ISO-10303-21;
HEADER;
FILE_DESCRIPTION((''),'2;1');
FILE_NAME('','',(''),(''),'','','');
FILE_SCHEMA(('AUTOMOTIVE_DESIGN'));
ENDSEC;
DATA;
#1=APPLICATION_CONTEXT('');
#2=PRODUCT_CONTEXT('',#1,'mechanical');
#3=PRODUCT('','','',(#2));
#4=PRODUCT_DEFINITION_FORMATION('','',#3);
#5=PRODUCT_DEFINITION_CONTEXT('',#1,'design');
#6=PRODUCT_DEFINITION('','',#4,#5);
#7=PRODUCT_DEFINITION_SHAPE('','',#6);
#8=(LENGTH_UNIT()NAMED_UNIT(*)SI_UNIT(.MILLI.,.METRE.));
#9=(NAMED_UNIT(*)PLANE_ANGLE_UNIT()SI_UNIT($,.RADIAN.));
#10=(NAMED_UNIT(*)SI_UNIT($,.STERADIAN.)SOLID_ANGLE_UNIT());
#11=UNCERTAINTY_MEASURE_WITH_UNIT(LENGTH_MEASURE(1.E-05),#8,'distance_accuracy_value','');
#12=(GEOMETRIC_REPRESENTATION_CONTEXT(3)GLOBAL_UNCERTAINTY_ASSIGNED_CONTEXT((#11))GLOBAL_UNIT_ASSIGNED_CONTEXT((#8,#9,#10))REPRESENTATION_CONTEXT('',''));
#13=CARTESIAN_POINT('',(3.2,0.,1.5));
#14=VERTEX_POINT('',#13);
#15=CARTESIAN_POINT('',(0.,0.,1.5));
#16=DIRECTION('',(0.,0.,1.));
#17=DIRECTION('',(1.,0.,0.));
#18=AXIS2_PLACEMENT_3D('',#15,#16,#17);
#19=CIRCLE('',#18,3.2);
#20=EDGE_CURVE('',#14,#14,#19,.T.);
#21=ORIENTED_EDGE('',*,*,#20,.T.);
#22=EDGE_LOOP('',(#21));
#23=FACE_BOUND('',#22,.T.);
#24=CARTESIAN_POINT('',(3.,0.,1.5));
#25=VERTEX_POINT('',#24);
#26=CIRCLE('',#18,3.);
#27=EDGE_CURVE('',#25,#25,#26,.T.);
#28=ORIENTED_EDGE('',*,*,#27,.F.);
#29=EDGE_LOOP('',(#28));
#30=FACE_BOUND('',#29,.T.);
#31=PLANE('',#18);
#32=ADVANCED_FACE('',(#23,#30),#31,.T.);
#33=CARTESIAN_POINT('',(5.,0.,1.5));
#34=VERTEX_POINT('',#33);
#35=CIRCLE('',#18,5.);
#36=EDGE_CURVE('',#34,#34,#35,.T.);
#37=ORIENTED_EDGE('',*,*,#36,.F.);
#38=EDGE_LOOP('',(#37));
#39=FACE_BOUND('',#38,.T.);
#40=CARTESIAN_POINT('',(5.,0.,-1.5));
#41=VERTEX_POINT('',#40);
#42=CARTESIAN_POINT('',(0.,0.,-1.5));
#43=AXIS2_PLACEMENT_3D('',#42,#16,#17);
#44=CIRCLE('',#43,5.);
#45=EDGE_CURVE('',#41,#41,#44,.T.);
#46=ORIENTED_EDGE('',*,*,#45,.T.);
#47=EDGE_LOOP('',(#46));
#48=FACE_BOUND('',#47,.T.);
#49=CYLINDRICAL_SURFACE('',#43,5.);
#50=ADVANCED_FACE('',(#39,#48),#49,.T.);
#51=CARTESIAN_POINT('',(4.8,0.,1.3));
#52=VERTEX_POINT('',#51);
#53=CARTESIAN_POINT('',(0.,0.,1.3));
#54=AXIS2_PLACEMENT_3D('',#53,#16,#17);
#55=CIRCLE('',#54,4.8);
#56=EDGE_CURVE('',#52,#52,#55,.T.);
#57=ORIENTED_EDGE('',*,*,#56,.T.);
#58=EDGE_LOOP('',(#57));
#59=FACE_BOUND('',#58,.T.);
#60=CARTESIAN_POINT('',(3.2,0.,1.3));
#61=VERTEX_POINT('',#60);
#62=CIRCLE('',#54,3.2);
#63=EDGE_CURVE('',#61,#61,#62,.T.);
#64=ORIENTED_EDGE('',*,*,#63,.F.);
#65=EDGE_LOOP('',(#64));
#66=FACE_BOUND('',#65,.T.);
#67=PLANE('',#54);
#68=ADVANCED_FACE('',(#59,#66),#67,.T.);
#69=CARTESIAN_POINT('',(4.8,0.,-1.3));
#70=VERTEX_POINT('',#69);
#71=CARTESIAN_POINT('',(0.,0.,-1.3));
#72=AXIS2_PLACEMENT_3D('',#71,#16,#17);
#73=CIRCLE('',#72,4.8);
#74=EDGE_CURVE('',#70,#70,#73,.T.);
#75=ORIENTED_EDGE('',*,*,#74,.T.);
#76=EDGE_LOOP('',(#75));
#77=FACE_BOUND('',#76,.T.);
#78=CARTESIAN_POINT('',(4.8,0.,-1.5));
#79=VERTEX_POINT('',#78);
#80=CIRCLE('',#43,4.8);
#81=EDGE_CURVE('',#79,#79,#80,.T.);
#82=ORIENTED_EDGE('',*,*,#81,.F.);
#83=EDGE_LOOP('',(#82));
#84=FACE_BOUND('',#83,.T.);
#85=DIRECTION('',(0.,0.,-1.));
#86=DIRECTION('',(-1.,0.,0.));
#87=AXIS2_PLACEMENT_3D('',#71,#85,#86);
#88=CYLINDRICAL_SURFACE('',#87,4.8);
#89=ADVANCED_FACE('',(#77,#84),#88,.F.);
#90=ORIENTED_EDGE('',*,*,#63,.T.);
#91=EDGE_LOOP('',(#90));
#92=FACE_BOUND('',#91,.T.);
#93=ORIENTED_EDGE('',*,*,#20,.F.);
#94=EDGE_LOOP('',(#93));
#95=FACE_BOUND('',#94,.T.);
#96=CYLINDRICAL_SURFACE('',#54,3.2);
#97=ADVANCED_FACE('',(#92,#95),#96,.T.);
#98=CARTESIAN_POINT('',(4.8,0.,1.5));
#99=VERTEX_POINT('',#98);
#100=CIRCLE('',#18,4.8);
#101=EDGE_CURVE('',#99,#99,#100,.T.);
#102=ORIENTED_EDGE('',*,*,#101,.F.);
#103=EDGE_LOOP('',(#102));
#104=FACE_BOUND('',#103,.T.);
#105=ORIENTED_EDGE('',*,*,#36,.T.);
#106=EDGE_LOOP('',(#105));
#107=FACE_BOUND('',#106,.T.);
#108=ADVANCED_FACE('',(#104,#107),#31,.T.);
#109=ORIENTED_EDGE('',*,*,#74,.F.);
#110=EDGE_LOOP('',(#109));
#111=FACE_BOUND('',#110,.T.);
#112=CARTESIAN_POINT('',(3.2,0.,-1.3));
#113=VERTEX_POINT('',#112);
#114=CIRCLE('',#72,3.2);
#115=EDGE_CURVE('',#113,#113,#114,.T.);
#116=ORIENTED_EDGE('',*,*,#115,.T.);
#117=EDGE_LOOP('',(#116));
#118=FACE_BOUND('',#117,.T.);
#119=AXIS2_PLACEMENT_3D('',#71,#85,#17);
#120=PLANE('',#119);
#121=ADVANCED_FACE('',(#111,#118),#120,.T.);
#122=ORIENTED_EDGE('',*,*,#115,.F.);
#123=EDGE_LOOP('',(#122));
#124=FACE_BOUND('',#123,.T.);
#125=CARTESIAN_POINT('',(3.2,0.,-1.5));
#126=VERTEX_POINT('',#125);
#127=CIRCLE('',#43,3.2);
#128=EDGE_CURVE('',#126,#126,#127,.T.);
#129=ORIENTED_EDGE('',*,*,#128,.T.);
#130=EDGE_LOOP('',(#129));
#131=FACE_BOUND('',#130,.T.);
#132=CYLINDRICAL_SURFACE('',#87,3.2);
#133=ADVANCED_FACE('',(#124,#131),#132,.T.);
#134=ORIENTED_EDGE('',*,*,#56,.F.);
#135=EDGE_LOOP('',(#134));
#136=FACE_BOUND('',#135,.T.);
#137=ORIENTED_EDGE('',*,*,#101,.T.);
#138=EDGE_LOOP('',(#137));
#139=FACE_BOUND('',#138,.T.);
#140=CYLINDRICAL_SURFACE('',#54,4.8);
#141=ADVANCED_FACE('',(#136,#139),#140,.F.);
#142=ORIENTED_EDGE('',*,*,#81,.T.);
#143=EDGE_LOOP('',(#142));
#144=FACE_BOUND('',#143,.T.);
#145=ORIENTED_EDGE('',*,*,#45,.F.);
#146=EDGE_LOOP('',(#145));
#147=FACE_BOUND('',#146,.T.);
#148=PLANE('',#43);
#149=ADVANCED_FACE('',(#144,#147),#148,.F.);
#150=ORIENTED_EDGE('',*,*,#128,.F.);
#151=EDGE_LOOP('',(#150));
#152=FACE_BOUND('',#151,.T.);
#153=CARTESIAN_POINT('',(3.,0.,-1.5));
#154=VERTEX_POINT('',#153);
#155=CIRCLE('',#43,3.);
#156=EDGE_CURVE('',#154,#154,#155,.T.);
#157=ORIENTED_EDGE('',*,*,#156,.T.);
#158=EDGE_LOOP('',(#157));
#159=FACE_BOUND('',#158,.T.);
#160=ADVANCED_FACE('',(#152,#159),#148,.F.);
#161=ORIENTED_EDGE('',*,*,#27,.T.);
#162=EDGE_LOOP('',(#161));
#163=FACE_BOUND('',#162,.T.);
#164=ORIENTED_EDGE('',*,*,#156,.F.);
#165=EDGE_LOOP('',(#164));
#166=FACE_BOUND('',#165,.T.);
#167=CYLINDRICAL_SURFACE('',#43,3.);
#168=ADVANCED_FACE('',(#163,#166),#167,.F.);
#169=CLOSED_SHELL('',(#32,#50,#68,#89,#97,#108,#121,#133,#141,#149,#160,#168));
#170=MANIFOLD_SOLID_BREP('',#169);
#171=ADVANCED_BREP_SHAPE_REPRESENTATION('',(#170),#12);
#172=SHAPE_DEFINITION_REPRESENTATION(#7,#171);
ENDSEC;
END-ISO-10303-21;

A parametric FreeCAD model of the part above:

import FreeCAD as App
import Part
import Sketcher
from FreeCAD import Vector
Q = App.Units.Quantity

doc = App.newDocument("Part")
body = doc.addObject("PartDesign::Body", "Body")

# Sketch on XY plane
sketch1 = body.newObject("Sketcher::SketchObject", "Sketch")
sketch1.AttachmentSupport = (doc.getObject("XY_Plane"), [""])
sketch1.MapMode = "FlatFace"
sketch1.addGeometry([
    Part.Circle(Vector(0, 0, 0), Vector(0, 0, 1), 5),
    Part.Circle(Vector(0, 0, 0), Vector(0, 0, 1), 3),
], False)
sketch1.addConstraint([
    Sketcher.Constraint("Coincident", 0, 3, -1, 1),
    Sketcher.Constraint("Coincident", 1, 3, -1, 1),
    Sketcher.Constraint("Diameter", 0, Q("10 mm")),
    Sketcher.Constraint("Diameter", 1, Q("6 mm")),
])
pad1 = body.newObject("PartDesign::Pad", "Pad")
pad1.Profile = sketch1
pad1.Type = "TwoLengths"
pad1.Length = 1.5
pad1.Length2 = 1.5

# Sketch on XY plane
sketch2 = body.newObject("Sketcher::SketchObject", "Sketch001")
sketch2.AttachmentSupport = (doc.getObject("XY_Plane"), [""])
sketch2.MapMode = "FlatFace"
sketch2.AttachmentOffset = App.Placement(Vector(0, 0, 1.5), App.Rotation())
sketch2.addGeometry([
    Part.Circle(Vector(0, 0, 0), Vector(0, 0, 1), 4.8),
    Part.Circle(Vector(0, 0, 0), Vector(0, 0, 1), 3.2),
], False)
sketch2.addConstraint([
    Sketcher.Constraint("Coincident", 0, 3, -1, 1),
    Sketcher.Constraint("Coincident", 1, 3, -1, 1),
    Sketcher.Constraint("Diameter", 0, Q("9.6 mm")),
    Sketcher.Constraint("Diameter", 1, Q("6.4 mm")),
])
pocket1 = body.newObject("PartDesign::Pocket", "Pocket")
pocket1.Profile = sketch2
pocket1.Length = 0.2
doc.recompute()

mirrored = body.newObject("PartDesign::Mirrored", "Mirrored")
mirrored.Originals = [pocket1]
mirrored.MirrorPlane = (doc.getObject("XY_Plane"), [""])
body.Tip = mirrored

doc.recompute()
